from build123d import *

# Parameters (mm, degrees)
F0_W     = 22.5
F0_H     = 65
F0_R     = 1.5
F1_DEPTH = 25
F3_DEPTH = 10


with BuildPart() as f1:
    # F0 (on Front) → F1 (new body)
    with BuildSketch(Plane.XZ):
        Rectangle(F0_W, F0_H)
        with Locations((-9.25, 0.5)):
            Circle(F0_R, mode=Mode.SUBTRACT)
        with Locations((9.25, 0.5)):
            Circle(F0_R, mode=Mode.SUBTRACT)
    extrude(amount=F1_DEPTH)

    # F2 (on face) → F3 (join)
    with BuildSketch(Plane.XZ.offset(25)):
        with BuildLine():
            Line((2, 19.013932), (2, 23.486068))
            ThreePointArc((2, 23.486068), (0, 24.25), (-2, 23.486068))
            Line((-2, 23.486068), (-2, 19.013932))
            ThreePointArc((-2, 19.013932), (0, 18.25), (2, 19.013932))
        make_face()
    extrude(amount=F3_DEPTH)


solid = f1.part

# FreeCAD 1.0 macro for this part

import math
import FreeCAD as App
import Part
import Sketcher

V = App.Vector


def add_polygon(sketch, points):
    """Adds a closed chain of lines whose ends are joined by coincident constraints."""
    first, n = sketch.GeometryCount, len(points)
    for a, b in zip(points, points[1:] + points[:1]):
        sketch.addGeometry(Part.LineSegment(App.Vector(*a, 0), App.Vector(*b, 0)), False)
    for i in range(n):
        sketch.addConstraint(Sketcher.Constraint("Coincident", first + i, 2, first + (i + 1) % n, 1))

doc = App.newDocument("Part")
body = doc.addObject("PartDesign::Body", "Body")

# Sketch on XZ plane
sketch1 = doc.addObject("Sketcher::SketchObject", "Sketch")
body.addObject(sketch1)
sketch1.AttachmentSupport = (doc.XZ_Plane, [""])
sketch1.MapMode = "FlatFace"
add_polygon(sketch1, [(-11.25, 32.5), (-11.25, -32.5), (11.25, -32.5), (11.25, 32.5)])  # lines 0-3
sketch1.addGeometry(Part.Circle(V(-9.25, 0.5, 0), V(0, 0, 1), 1.5), False)  # 4
sketch1.addGeometry(Part.Circle(V(9.25, 0.5, 0), V(0, 0, 1), 1.5), False)  # 5
sketch1.addConstraint(Sketcher.Constraint("Vertical", 0))
sketch1.addConstraint(Sketcher.Constraint("Horizontal", 1))
sketch1.addConstraint(Sketcher.Constraint("Vertical", 2))
sketch1.addConstraint(Sketcher.Constraint("Horizontal", 3))
sketch1.addConstraint(Sketcher.Constraint("Equal", 4, 5))
sketch1.addConstraint(Sketcher.Constraint("Symmetric", 0, 2, 2, 2, -1, 1))
sketch1.addConstraint(Sketcher.Constraint("Symmetric", 4, 3, 5, 3, -2))
sketch1.addConstraint(Sketcher.Constraint("Diameter", 4, 3.0))
sketch1.addConstraint(Sketcher.Constraint("DistanceY", 0, 2, 0, 1, 65.0))
sketch1.addConstraint(Sketcher.Constraint("DistanceX", 1, 1, 1, 2, 22.5))
sketch1.addConstraint(Sketcher.Constraint("DistanceX", 0, 2, 4, 3, 2.0))
sketch1.addConstraint(Sketcher.Constraint("DistanceY", 0, 2, 4, 3, 33.0))
pad1 = doc.addObject("PartDesign::Pad", "Pad")
body.addObject(pad1)
pad1.Profile = sketch1
pad1.Length = 25

# Sketch on XZ plane
sketch2 = doc.addObject("Sketcher::SketchObject", "Sketch001")
body.addObject(sketch2)
sketch2.AttachmentSupport = (doc.XZ_Plane, [""])
sketch2.MapMode = "FlatFace"
sketch2.AttachmentOffset = App.Placement(V(0, 0, 25), App.Rotation())
sketch2.addGeometry(Part.LineSegment(V(2, 19.013932, 0), V(2, 23.486068, 0)), False)
sketch2.addGeometry(Part.ArcOfCircle(Part.Circle(V(0, 21.25, 0), V(0, 0, 1), 3), math.radians(48.189686), math.radians(131.810314)), False)
sketch2.addGeometry(Part.LineSegment(V(-2, 23.486068, 0), V(-2, 19.013932, 0)), False)
sketch2.addGeometry(Part.ArcOfCircle(Part.Circle(V(0, 21.25, 0), V(0, 0, 1), 3), math.radians(-131.810314), math.radians(-48.189686)), False)
sketch2.addConstraint(Sketcher.Constraint("Coincident", 0, 2, 1, 1))
sketch2.addConstraint(Sketcher.Constraint("Coincident", 1, 2, 2, 1))
sketch2.addConstraint(Sketcher.Constraint("Coincident", 2, 2, 3, 1))
sketch2.addConstraint(Sketcher.Constraint("Coincident", 3, 2, 0, 1))
sketch2.addConstraint(Sketcher.Constraint("Vertical", 0))
sketch2.addConstraint(Sketcher.Constraint("Vertical", 2))
sketch2.addConstraint(Sketcher.Constraint("Coincident", 3, 3, 1, 3))
sketch2.addConstraint(Sketcher.Constraint("Equal", 1, 3))
sketch2.addConstraint(Sketcher.Constraint("Symmetric", 0, 2, 1, 2, -2))
sketch2.addConstraint(Sketcher.Constraint("Radius", 1, 3.0))
sketch2.addConstraint(Sketcher.Constraint("DistanceX", -1, 1, 0, 2, 2.0))
sketch2.addConstraint(Sketcher.Constraint("DistanceY", -1, 1, 1, 3, 21.25))
pad2 = doc.addObject("PartDesign::Pad", "Pad001")
body.addObject(pad2)
pad2.Profile = sketch2
pad2.Length = 10

doc.recompute()
